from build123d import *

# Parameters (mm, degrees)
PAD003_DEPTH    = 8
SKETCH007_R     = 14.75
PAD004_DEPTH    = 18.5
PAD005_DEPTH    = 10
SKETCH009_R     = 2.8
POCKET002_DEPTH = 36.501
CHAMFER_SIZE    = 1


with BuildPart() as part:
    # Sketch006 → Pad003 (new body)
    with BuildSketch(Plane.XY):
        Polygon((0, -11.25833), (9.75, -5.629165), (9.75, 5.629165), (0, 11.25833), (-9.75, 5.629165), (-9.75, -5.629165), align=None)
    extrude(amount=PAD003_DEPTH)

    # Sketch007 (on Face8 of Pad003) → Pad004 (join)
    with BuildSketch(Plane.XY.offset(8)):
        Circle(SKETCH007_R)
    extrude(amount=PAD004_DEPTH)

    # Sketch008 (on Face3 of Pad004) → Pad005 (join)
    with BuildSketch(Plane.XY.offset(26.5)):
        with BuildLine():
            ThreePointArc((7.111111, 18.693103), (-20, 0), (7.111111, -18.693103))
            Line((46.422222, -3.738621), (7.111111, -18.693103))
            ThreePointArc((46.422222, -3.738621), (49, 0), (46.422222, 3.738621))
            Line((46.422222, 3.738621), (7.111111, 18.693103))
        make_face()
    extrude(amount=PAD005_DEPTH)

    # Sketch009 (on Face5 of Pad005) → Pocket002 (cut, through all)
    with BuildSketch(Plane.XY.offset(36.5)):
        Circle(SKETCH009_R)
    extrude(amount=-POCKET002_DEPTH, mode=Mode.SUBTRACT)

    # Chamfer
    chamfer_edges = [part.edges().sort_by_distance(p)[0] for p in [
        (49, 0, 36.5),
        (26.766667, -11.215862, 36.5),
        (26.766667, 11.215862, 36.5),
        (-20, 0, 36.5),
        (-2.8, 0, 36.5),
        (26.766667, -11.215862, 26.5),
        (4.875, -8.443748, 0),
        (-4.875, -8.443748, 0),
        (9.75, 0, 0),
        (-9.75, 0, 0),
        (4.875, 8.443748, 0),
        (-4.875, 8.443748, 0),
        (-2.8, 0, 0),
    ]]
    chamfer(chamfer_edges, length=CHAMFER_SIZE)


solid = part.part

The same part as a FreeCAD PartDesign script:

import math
import FreeCAD as App
import Part
import Sketcher
from FreeCAD import Vector
Q = App.Units.Quantity


def edges_at(feature, points):
    """Names of the edges that pass closest to the given points."""
    edges = feature.Shape.Edges
    near = lambda p: min(range(len(edges)), key=lambda i: edges[i].distToShape(Part.Vertex(*p))[0])
    return sorted({f"Edge{near(p) + 1}" for p in points})


def add_polygon(sketch, points):
    """Adds a closed chain of lines whose ends are joined by coincident constraints."""
    first, n = sketch.GeometryCount, len(points)
    for a, b in zip(points, points[1:] + points[:1]):
        sketch.addGeometry(Part.LineSegment(App.Vector(*a, 0), App.Vector(*b, 0)), False)
    for i in range(n):
        sketch.addConstraint(Sketcher.Constraint("Coincident", first + i, 2, first + (i + 1) % n, 1))

doc = App.newDocument("Part")
params = doc.addObject("Spreadsheet::Sheet", "Params")
for row, (alias, value) in enumerate([
    ("pad1_length", "8 mm"),
    ("sketch2_diameter", "29.5 mm"),
    ("pad2_length", "18.5 mm"),
    ("sketch3_radius", "20 mm"),
    ("sketch3_radius2", "4 mm"),
    ("pad3_length", "10 mm"),
    ("sketch4_diameter", "5.6 mm"),
    ("chamfer_size", "1 mm"),
], start=1):
    params.set(f"A{row}", alias)
    params.set(f"B{row}", "=" + value)
    params.setAlias(f"B{row}", alias)

body = doc.addObject("PartDesign::Body", "Body")

# Sketch on XY plane
sketch1 = body.newObject("Sketcher::SketchObject", "Sketch")
sketch1.AttachmentSupport = (doc.getObject("XY_Plane"), [""])
sketch1.MapMode = "FlatFace"
add_polygon(sketch1, [(0, -11), (10, -6), (10, 6), (0, 11), (-10, 6), (-10, -6)])  # lines 0-5
sketch1.addConstraint(Sketcher.Constraint("Vertical", 1))
sketch1.addConstraint(Sketcher.Constraint("Vertical", 4))
sketch1.addConstraint(Sketcher.Constraint("Symmetric", 0, 2, 3, 2, -1, 1))
sketch1.addConstraint(Sketcher.Constraint("Symmetric", 2, 2, 5, 2, -1, 1))
sketch1.addConstraint(Sketcher.Constraint("PointOnObject", 2, 2, -2))
sketch1.addConstraint(Sketcher.Constraint("Parallel", 2, 5))
sketch1.addConstraint(Sketcher.Constraint("Horizontal", 1, 2, 3, 2))
sketch1.addConstraint(Sketcher.Constraint("Angle", 0, Q("29.999999 deg")))
sketch1.addConstraint(Sketcher.Constraint("DistanceX", 3, 2, 1, 2, 19.5))
sketch1.addConstraint(Sketcher.Constraint("DistanceY", 1, 1, 1, 2, 11.25833))
pad1 = body.newObject("PartDesign::Pad", "Pad")
pad1.Profile = sketch1
pad1.setExpression("Length", "Params.pad1_length")

# Sketch on XY plane
sketch2 = body.newObject("Sketcher::SketchObject", "Sketch001")
sketch2.AttachmentSupport = (doc.getObject("XY_Plane"), [""])
sketch2.MapMode = "FlatFace"
sketch2.AttachmentOffset = App.Placement(Vector(0, 0, 8), App.Rotation())
sketch2.addGeometry(Part.Circle(Vector(0, 0, 0), Vector(0, 0, 1), 15), False)
sketch2.addConstraint(Sketcher.Constraint("Coincident", 0, 3, -1, 1))
sketch2.addConstraint(Sketcher.Constraint("Diameter", 0, 29.5))
sketch2.setExpression("Constraints[1]", "Params.sketch2_diameter")
pad2 = body.newObject("PartDesign::Pad", "Pad001")
pad2.Profile = sketch2
pad2.setExpression("Length", "Params.pad2_length")

# Sketch on XY plane
sketch3 = body.newObject("Sketcher::SketchObject", "Sketch002")
sketch3.AttachmentSupport = (doc.getObject("XY_Plane"), [""])
sketch3.MapMode = "FlatFace"
sketch3.AttachmentOffset = App.Placement(Vector(0, 0, 26.5), App.Rotation())
sketch3.addGeometry(Part.ArcOfCircle(Part.Circle(Vector(0, 0, 0), Vector(0, 0, 1), 20), math.radians(69), math.radians(291)), False)
sketch3.addGeometry(Part.LineSegment(Vector(7.1, -18.7, 0), Vector(46.4, -3.7, 0)), False)
sketch3.addGeometry(Part.ArcOfCircle(Part.Circle(Vector(45, 0, 0), Vector(0, 0, 1), 4), math.radians(-69), math.radians(69)), False)
sketch3.addGeometry(Part.LineSegment(Vector(46.4, 3.7, 0), Vector(7.1, 18.7, 0)), False)
sketch3.addConstraint(Sketcher.Constraint("Tangent", 0, 2, 1, 1))
sketch3.addConstraint(Sketcher.Constraint("Tangent", 1, 2, 2, 1))
sketch3.addConstraint(Sketcher.Constraint("Tangent", 2, 2, 3, 1))
sketch3.addConstraint(Sketcher.Constraint("Tangent", 3, 2, 0, 1))
sketch3.addConstraint(Sketcher.Constraint("Coincident", 0, 3, -1, 1))
sketch3.addConstraint(Sketcher.Constraint("PointOnObject", 2, 3, -1))
sketch3.addConstraint(Sketcher.Constraint("Radius", 0, 20.0))
sketch3.addConstraint(Sketcher.Constraint("Radius", 2, 4.0))
sketch3.addConstraint(Sketcher.Constraint("DistanceX", -1, 1, 2, 3, 45.0))
sketch3.setExpression("Constraints[6]", "Params.sketch3_radius")
sketch3.setExpression("Constraints[7]", "Params.sketch3_radius2")
pad3 = body.newObject("PartDesign::Pad", "Pad002")
pad3.Profile = sketch3
pad3.setExpression("Length", "Params.pad3_length")

# Sketch on XY plane
sketch4 = body.newObject("Sketcher::SketchObject", "Sketch003")
sketch4.AttachmentSupport = (doc.getObject("XY_Plane"), [""])
sketch4.MapMode = "FlatFace"
sketch4.AttachmentOffset = App.Placement(Vector(0, 0, 36.5), App.Rotation())
sketch4.addGeometry(Part.Circle(Vector(0, 0, 0), Vector(0, 0, 1), 2.8), False)
sketch4.addConstraint(Sketcher.Constraint("Coincident", 0, 3, -1, 1))
sketch4.addConstraint(Sketcher.Constraint("Diameter", 0, 5.6))
sketch4.setExpression("Constraints[1]", "Params.sketch4_diameter")
pocket1 = body.newObject("PartDesign::Pocket", "Pocket")
pocket1.Profile = sketch4
pocket1.Type = "ThroughAll"
doc.recompute()

chamfer = body.newObject("PartDesign::Chamfer", "Chamfer")
chamfer.Base = (pocket1, edges_at(pocket1, [
    (49, 0, 36.5),
    (26.767, -11.216, 36.5),
    (26.767, 11.216, 36.5),
    (-20, 0, 36.5),
    (-2.8, 0, 36.5),
    (26.767, -11.216, 26.5),
    (4.875, -8.444, 0),
    (-4.875, -8.444, 0),
    (9.75, 0, 0),
    (-9.75, 0, 0),
    (4.875, 8.444, 0),
    (-4.875, 8.444, 0),
    (-2.8, 0, 0),
]))
chamfer.setExpression("Size", "Params.chamfer_size")

doc.recompute()
